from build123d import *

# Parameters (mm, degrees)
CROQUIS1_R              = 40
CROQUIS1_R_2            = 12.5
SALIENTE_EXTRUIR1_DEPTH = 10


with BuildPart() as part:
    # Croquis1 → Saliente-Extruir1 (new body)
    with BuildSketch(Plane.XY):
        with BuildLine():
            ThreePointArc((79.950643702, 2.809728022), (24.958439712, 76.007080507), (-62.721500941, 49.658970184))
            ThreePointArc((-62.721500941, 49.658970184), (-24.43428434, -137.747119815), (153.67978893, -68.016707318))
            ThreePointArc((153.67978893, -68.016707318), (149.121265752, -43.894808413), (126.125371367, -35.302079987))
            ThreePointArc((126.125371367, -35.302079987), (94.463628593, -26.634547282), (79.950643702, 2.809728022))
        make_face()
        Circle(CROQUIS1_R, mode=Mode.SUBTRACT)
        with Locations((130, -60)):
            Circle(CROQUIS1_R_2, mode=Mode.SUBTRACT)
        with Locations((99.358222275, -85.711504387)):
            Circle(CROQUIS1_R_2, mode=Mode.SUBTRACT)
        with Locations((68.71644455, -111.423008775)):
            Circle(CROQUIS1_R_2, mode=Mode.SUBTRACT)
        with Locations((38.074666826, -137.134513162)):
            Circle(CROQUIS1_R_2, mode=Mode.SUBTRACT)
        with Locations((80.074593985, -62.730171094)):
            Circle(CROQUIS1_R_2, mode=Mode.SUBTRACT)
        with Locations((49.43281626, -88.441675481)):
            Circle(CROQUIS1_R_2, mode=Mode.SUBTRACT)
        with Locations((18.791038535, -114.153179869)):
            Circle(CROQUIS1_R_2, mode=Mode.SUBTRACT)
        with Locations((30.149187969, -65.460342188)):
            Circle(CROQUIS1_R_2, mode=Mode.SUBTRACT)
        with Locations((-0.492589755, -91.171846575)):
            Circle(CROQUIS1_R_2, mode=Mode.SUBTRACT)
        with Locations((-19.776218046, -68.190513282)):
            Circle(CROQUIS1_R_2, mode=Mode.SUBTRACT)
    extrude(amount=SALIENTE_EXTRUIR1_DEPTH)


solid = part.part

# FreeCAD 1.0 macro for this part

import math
import FreeCAD as App
import Part
import Sketcher

V = App.Vector

doc = App.newDocument("Part")
body = doc.addObject("PartDesign::Body", "Body")

# Sketch on XY plane
sketch1 = body.newObject("Sketcher::SketchObject", "Sketch")
sketch1.AttachmentSupport = (doc.getObject("XY_Plane"), [""])
sketch1.MapMode = "FlatFace"
sketch1.addGeometry([
    Part.ArcOfCircle(Part.Circle(V(0, 0, 0), V(0, 0, 1), 80), math.radians(2), math.radians(142)),  # 0
    Part.ArcOfCircle(Part.Circle(V(35, -28, 0), V(0, 0, 1), 125), math.radians(142), math.radians(341)),  # 1
    Part.ArcOfCircle(Part.Circle(V(130, -60, 0), V(0, 0, 1), 25), math.radians(-19), math.radians(99)),  # 2
    Part.ArcOfCircle(Part.Circle(V(120, 4, 0), V(0, 0, 1), 40), math.radians(-178), math.radians(-81)),  # 3
    Part.Circle(V(38, -137, 0), V(0, 0, 1), 12),  # 4
    Part.Circle(V(19, -114, 0), V(0, 0, 1), 12),  # 5
    Part.Circle(V(0, -91, 0), V(0, 0, 1), 12),  # 6
    Part.Circle(V(-20, -68, 0), V(0, 0, 1), 12),  # 7
    Part.Circle(V(49, -88, 0), V(0, 0, 1), 12),  # 8
    Part.Circle(V(30, -65, 0), V(0, 0, 1), 12),  # 9
    Part.Circle(V(69, -111, 0), V(0, 0, 1), 12),  # 10
    Part.Circle(V(80, -63, 0), V(0, 0, 1), 12),  # 11
    Part.Circle(V(99, -86, 0), V(0, 0, 1), 12),  # 12
    Part.Circle(V(130, -60, 0), V(0, 0, 1), 12),  # 13
    Part.Circle(V(0, 0, 0), V(0, 0, 1), 40),  # 14
], False)
sketch1.addConstraint([
    Sketcher.Constraint("Tangent", 0, 2, 1, 1),
    Sketcher.Constraint("Tangent", 1, 2, 2, 1),
    Sketcher.Constraint("Tangent", 2, 2, 3, 2),
    Sketcher.Constraint("Tangent", 3, 1, 0, 1),
    Sketcher.Constraint("Coincident", 0, 3, -1, 1),
    Sketcher.Constraint("Coincident", 14, 3, -1, 1),
    Sketcher.Constraint("Coincident", 13, 3, 2, 3),
    Sketcher.Constraint("Equal", 4, 5),
    Sketcher.Constraint("Equal", 5, 6),
    Sketcher.Constraint("Equal", 6, 7),
    Sketcher.Constraint("Equal", 7, 8),
    Sketcher.Constraint("Equal", 8, 9),
    Sketcher.Constraint("Equal", 9, 10),
    Sketcher.Constraint("Equal", 10, 11),
    Sketcher.Constraint("Equal", 11, 12),
    Sketcher.Constraint("Equal", 12, 13),
    Sketcher.Constraint("Equal", 3, 14),
    Sketcher.Constraint("Diameter", 4, 25.0),
    Sketcher.Constraint("Diameter", 14, 80.0),
    Sketcher.Constraint("Radius", 0, 80.0),
    Sketcher.Constraint("Radius", 1, 125.0),
    Sketcher.Constraint("Radius", 2, 25.0),
    Sketcher.Constraint("DistanceX", -1, 1, 2, 3, 130.0),
    Sketcher.Constraint("DistanceY", 2, 3, -1, 1, 60.0),
    Sketcher.Constraint("DistanceY", 4, 3, 7, 3, 68.944),
    Sketcher.Constraint("DistanceY", 11, 3, 1, 3, 34.797),
    Sketcher.Constraint("DistanceX", 4, 3, 3, 3, 81.851299),
    Sketcher.Constraint("DistanceX", -1, 1, 5, 3, 18.791039),
    Sketcher.Constraint("DistanceY", 5, 3, -1, 1, 114.15318),
    Sketcher.Constraint("DistanceX", 6, 3, -1, 1, 0.49259),
    Sketcher.Constraint("DistanceX", 7, 3, -1, 1, 19.776218),
    Sketcher.Constraint("DistanceY", 10, 3, -1, 1, 111.423009),
    Sketcher.Constraint("DistanceY", 6, 3, 8, 3, 2.730171),
    Sketcher.Constraint("DistanceX", 4, 3, 8, 3, 11.358149),
    Sketcher.Constraint("DistanceX", 9, 3, 8, 3, 19.283628),
    Sketcher.Constraint("DistanceY", 9, 3, 1, 3, 37.527171),
    Sketcher.Constraint("DistanceY", 7, 3, 9, 3, 2.730171),
    Sketcher.Constraint("DistanceX", 8, 3, 10, 3, 19.283628),
    Sketcher.Constraint("DistanceX", 10, 3, 11, 3, 11.358149),
    Sketcher.Constraint("DistanceX", 11, 3, 12, 3, 19.283628),
    Sketcher.Constraint("DistanceY", 8, 3, 12, 3, 2.730171),
    Sketcher.Constraint("DistanceY", 6, 3, -1, 1, 91.171847),
])
pad1 = body.newObject("PartDesign::Pad", "Pad")
pad1.Profile = sketch1
pad1.Length = 10

doc.recompute()
